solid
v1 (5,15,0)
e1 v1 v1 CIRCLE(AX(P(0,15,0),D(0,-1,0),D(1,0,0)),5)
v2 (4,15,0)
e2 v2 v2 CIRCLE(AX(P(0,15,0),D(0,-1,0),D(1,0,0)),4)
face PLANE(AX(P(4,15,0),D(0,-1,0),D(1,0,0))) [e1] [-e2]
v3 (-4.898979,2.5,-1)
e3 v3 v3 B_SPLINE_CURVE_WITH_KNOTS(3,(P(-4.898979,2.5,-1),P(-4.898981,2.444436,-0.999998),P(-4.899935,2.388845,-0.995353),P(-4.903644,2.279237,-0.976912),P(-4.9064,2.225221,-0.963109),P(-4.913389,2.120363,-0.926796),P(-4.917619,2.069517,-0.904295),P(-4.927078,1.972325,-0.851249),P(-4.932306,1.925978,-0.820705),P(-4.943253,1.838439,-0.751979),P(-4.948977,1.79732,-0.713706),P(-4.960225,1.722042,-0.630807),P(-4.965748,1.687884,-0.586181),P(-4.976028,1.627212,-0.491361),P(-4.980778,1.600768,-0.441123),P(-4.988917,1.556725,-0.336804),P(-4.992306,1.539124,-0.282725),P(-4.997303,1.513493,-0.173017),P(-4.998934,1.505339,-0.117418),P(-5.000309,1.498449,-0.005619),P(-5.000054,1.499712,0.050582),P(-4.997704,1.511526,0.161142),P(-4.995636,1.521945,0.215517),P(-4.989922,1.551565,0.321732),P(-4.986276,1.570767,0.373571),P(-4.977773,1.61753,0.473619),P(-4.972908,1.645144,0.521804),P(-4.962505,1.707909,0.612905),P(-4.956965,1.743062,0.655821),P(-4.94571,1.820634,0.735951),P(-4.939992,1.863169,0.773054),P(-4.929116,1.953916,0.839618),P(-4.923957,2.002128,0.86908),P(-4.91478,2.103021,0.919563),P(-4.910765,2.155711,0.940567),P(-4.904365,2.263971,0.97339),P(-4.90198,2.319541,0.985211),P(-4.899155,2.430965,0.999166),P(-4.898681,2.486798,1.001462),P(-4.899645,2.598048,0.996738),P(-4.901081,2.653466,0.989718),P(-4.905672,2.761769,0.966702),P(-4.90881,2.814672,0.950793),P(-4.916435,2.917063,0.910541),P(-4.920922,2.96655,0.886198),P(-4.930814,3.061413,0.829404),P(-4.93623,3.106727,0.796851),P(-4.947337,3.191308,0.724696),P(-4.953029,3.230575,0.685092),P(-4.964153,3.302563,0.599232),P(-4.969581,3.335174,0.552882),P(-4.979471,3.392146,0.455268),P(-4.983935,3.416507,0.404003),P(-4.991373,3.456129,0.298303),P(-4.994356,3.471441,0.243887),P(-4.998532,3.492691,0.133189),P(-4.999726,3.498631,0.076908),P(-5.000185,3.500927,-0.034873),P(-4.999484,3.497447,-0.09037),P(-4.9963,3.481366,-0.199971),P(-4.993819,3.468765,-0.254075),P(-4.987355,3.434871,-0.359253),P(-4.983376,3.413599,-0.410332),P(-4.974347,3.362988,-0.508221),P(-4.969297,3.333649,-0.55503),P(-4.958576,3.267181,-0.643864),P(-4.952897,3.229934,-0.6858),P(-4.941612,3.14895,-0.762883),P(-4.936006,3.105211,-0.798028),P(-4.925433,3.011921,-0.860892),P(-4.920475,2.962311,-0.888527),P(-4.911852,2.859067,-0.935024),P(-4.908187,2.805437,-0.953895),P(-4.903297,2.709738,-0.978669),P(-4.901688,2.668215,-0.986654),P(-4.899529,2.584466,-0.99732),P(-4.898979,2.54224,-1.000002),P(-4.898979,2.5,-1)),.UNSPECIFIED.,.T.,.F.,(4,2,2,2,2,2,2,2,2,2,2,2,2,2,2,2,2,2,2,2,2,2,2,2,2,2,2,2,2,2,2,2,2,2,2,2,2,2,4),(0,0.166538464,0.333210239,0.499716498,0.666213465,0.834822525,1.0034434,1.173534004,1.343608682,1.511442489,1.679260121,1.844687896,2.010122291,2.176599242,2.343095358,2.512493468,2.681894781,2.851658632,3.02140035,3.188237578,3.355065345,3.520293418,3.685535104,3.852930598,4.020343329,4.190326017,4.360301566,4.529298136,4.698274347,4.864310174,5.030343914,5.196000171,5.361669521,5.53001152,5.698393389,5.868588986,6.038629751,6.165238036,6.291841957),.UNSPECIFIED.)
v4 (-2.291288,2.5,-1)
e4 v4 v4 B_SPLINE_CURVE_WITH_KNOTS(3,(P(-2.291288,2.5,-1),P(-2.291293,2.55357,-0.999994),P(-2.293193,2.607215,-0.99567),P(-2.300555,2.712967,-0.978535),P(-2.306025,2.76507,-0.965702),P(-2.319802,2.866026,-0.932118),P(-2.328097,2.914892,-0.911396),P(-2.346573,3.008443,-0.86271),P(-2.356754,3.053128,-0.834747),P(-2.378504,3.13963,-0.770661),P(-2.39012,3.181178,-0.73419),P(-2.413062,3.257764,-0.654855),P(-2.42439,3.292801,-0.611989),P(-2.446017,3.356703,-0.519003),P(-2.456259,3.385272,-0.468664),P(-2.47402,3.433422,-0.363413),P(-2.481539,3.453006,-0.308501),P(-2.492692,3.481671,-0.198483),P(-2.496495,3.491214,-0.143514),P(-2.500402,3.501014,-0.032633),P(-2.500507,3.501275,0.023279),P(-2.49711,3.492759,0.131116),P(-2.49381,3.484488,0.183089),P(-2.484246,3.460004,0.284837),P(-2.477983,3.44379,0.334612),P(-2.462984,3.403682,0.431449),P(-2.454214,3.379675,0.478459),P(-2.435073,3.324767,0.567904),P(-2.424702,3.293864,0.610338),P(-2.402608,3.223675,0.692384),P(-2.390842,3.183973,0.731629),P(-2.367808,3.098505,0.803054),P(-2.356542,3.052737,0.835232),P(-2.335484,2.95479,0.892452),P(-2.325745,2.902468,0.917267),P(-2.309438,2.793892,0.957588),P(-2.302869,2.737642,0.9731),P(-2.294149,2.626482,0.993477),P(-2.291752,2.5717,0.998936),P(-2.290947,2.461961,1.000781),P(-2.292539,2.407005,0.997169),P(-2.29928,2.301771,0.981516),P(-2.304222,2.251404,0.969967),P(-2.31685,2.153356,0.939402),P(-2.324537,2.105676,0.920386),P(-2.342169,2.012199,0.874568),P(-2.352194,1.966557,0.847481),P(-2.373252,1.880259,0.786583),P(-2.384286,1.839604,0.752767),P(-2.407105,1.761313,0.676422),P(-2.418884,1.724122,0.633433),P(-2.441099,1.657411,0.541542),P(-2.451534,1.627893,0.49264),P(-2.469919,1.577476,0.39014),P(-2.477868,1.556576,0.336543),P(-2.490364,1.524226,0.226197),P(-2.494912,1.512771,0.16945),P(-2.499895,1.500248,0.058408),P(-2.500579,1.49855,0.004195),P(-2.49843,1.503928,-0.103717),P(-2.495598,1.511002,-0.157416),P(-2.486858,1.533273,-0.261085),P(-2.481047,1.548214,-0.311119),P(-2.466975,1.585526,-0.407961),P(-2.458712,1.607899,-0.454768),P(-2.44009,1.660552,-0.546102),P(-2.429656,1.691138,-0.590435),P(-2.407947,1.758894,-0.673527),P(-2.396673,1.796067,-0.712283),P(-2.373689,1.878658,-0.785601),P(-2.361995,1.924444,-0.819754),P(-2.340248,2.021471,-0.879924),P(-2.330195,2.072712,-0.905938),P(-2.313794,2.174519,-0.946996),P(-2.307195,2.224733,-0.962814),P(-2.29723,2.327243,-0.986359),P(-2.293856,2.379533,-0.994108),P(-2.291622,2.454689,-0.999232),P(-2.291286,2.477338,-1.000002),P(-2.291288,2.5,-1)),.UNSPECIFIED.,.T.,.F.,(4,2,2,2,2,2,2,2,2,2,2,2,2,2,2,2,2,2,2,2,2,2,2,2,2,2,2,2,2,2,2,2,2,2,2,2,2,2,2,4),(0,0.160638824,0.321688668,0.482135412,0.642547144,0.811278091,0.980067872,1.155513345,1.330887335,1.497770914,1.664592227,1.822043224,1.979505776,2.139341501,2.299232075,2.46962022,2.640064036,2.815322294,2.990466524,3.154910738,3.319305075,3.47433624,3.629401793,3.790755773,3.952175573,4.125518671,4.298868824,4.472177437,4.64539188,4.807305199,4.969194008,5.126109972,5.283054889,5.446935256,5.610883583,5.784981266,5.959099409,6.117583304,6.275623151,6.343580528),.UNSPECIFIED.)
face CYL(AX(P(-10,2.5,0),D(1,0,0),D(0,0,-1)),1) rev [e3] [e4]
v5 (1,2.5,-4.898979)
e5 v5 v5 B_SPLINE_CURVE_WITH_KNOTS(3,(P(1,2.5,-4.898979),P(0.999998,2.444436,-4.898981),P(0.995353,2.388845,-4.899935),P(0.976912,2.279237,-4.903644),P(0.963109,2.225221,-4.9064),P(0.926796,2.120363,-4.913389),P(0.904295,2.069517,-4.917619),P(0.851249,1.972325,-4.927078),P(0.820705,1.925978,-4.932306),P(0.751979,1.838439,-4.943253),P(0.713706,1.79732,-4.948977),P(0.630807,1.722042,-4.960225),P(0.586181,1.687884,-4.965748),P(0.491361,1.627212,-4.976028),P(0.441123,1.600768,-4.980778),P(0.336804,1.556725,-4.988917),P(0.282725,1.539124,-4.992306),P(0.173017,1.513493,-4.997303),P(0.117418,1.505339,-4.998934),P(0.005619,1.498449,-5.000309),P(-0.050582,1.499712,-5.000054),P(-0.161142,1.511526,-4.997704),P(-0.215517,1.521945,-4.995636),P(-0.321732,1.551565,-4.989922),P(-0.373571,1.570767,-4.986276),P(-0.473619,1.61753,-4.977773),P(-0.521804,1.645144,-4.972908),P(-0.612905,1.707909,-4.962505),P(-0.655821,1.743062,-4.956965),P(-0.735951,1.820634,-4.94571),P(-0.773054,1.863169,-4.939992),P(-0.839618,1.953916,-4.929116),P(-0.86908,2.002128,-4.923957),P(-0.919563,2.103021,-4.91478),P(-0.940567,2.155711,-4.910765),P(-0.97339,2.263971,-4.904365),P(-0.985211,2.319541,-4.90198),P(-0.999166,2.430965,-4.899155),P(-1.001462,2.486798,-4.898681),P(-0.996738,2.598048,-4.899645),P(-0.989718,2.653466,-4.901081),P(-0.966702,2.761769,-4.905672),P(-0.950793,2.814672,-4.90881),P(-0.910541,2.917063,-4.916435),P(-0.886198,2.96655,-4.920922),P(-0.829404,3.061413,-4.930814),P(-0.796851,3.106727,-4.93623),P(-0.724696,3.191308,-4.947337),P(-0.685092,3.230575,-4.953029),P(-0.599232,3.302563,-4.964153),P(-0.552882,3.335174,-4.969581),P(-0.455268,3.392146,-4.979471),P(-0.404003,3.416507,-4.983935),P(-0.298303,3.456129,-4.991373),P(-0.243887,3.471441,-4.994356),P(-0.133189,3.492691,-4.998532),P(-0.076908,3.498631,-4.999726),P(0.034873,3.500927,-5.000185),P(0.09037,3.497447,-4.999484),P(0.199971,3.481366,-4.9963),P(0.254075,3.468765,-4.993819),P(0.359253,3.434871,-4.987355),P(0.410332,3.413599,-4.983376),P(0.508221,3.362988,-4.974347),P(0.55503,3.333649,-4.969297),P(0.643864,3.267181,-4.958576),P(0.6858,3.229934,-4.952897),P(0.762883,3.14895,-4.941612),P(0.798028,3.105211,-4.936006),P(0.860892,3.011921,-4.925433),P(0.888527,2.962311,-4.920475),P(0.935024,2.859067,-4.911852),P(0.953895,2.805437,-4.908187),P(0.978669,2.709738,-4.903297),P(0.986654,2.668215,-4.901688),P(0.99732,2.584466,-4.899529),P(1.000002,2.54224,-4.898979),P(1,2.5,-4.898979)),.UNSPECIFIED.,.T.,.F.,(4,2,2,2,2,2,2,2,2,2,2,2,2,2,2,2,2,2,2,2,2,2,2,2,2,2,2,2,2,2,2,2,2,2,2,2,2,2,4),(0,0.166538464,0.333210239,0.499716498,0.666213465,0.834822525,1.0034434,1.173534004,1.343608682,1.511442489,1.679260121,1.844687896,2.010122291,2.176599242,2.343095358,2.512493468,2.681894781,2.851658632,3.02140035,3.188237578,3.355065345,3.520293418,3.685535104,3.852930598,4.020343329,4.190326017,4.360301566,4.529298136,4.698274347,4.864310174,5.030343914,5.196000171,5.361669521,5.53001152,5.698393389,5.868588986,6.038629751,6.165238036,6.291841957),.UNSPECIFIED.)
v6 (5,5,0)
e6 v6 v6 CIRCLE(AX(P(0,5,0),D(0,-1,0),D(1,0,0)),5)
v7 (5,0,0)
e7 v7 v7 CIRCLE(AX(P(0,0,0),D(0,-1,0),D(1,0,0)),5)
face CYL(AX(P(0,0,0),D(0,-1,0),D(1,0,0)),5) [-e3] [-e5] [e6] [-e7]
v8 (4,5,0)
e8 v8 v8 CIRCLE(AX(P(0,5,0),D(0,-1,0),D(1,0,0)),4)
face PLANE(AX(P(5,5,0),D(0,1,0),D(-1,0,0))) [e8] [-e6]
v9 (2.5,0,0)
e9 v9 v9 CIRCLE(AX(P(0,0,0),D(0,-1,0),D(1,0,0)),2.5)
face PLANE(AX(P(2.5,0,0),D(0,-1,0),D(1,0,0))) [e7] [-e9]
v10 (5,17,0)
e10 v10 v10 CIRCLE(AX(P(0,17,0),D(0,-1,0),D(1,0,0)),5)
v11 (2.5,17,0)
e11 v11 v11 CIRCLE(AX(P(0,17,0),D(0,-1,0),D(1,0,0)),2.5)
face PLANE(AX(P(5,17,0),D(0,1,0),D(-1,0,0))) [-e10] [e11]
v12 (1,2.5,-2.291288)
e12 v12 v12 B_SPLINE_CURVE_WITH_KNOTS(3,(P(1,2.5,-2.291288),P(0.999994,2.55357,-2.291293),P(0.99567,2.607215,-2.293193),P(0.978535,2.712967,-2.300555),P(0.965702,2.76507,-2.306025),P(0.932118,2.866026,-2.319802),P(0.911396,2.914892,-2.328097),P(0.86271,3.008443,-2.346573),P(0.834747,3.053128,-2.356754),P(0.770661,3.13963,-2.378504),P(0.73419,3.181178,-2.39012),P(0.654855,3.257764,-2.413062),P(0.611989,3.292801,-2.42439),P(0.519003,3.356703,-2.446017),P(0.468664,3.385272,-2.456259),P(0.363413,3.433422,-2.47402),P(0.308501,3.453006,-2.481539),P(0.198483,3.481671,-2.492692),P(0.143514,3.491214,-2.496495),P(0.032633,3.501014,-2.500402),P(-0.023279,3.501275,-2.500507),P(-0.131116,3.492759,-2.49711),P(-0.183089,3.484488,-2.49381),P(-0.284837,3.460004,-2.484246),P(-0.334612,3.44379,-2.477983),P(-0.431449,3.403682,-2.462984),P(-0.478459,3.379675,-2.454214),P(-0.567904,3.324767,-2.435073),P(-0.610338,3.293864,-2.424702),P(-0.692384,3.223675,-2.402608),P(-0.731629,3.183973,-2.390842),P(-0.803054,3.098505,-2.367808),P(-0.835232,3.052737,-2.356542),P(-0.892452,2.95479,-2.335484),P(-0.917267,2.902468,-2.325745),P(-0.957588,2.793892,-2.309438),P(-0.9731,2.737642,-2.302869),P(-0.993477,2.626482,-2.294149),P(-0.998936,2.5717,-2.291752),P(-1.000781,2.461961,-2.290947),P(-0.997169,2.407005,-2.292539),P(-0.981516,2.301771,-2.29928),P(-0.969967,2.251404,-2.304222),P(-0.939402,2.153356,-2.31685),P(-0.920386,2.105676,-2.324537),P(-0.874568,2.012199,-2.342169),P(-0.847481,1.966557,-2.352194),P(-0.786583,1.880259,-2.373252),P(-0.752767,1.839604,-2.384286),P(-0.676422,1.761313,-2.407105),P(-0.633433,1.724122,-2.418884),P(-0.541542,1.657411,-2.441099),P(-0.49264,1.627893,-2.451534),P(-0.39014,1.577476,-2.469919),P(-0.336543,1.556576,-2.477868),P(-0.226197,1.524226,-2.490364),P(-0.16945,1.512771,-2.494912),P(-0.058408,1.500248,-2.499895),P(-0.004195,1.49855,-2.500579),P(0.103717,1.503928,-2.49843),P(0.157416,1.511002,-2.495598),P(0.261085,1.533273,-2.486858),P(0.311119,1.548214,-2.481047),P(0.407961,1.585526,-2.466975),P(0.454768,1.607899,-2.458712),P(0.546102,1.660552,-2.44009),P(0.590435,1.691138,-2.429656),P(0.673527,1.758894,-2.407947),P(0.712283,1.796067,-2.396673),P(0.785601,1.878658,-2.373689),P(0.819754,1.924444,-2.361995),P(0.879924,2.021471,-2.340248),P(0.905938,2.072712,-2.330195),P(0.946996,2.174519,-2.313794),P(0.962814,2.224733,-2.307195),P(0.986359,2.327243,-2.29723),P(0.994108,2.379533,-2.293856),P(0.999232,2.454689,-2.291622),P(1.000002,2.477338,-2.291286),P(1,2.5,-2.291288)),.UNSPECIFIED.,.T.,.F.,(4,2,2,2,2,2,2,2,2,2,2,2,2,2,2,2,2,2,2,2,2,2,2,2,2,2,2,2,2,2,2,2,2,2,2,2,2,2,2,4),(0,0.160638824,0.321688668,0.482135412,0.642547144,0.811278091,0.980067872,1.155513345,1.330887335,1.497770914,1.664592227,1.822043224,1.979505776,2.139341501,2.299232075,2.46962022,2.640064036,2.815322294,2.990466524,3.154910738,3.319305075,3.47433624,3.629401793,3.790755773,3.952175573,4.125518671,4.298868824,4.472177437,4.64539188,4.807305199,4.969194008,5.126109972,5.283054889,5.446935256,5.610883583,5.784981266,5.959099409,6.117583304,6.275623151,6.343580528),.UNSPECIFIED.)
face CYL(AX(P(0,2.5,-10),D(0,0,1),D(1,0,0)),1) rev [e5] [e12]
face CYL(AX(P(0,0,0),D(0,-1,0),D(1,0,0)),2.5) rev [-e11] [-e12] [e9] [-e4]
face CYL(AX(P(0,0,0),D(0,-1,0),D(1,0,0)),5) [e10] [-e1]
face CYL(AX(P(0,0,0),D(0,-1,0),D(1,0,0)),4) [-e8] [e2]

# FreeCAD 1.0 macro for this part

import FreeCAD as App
import Part
import Sketcher


def add_polygon(sketch, points):
    """Adds a closed chain of lines whose ends are joined by coincident constraints."""
    first, n = sketch.GeometryCount, len(points)
    for a, b in zip(points, points[1:] + points[:1]):
        sketch.addGeometry(Part.LineSegment(App.Vector(*a, 0), App.Vector(*b, 0)), False)
    for i in range(n):
        sketch.addConstraint(Sketcher.Constraint("Coincident", first + i, 2, first + (i + 1) % n, 1))

doc = App.newDocument("Part")
body = doc.addObject("PartDesign::Body", "Body")

sketch1 = doc.addObject("Sketcher::SketchObject", "Sketch")
body.addObject(sketch1)
sketch1.AttachmentSupport = (doc.XY_Plane, [""])
sketch1.MapMode = "FlatFace"
add_polygon(sketch1, [(2.5, 0), (5, 0), (5, 5), (4, 5), (4, 15), (5, 15), (5, 17), (2.5, 17)])
sketch1.addConstraint([
    Sketcher.Constraint("Horizontal", 0),
    Sketcher.Constraint("Vertical", 1),
    Sketcher.Constraint("Horizontal", 2),
    Sketcher.Constraint("Vertical", 3),
    Sketcher.Constraint("Horizontal", 4),
    Sketcher.Constraint("Vertical", 5),
    Sketcher.Constraint("Horizontal", 6),
    Sketcher.Constraint("Vertical", 7),
    Sketcher.Constraint("PointOnObject", 0, 2, -1),
    Sketcher.Constraint("Vertical", 1, 2, 4, 2),
    Sketcher.Constraint("DistanceX", 2, 2, 2, 1, 1.0),
    Sketcher.Constraint("DistanceY", 1, 1, 1, 2, 5.0),
    Sketcher.Constraint("DistanceY", 3, 1, 3, 2, 10.0),
    Sketcher.Constraint("DistanceY", 5, 1, 5, 2, 2.0),
    Sketcher.Constraint("DistanceX", 0, 1, 0, 2, 2.5),
    Sketcher.Constraint("DistanceX", -1, 1, 0, 2, 5.0),
])
revolution = doc.addObject("PartDesign::Revolution", "Revolution")
body.addObject(revolution)
revolution.Profile = sketch1
revolution.ReferenceAxis = (sketch1, ["V_Axis"])
revolution.Angle = 360

sketch2 = doc.addObject("Sketcher::SketchObject", "Sketch001")
body.addObject(sketch2)
sketch2.AttachmentSupport = (doc.XY_Plane, [""])
sketch2.MapMode = "FlatFace"
sketch2.addGeometry(Part.Circle(App.Vector(0, 2.5, 0), App.Vector(0, 0, 1), 1), False)
sketch2.addConstraint([
    Sketcher.Constraint("PointOnObject", 0, 3, -2),
    Sketcher.Constraint("Diameter", 0, 2.0),
    Sketcher.Constraint("DistanceY", -1, 1, 0, 3, 2.5),
])
pocket1 = doc.addObject("PartDesign::Pocket", "Pocket")
body.addObject(pocket1)
pocket1.Profile = sketch2
pocket1.Length = 10

sketch3 = doc.addObject("Sketcher::SketchObject", "Sketch002")
body.addObject(sketch3)
sketch3.AttachmentSupport = (doc.YZ_Plane, [""])
sketch3.MapMode = "FlatFace"
sketch3.addGeometry(Part.Circle(App.Vector(2.5, 0, 0), App.Vector(0, 0, 1), 1), False)
sketch3.addConstraint([
    Sketcher.Constraint("PointOnObject", 0, 3, -1),
    Sketcher.Constraint("Diameter", 0, 2.0),
    Sketcher.Constraint("DistanceX", -1, 1, 0, 3, 2.5),
])
pocket2 = doc.addObject("PartDesign::Pocket", "Pocket001")
body.addObject(pocket2)
pocket2.Profile = sketch3
pocket2.Length = 10

doc.recompute()
